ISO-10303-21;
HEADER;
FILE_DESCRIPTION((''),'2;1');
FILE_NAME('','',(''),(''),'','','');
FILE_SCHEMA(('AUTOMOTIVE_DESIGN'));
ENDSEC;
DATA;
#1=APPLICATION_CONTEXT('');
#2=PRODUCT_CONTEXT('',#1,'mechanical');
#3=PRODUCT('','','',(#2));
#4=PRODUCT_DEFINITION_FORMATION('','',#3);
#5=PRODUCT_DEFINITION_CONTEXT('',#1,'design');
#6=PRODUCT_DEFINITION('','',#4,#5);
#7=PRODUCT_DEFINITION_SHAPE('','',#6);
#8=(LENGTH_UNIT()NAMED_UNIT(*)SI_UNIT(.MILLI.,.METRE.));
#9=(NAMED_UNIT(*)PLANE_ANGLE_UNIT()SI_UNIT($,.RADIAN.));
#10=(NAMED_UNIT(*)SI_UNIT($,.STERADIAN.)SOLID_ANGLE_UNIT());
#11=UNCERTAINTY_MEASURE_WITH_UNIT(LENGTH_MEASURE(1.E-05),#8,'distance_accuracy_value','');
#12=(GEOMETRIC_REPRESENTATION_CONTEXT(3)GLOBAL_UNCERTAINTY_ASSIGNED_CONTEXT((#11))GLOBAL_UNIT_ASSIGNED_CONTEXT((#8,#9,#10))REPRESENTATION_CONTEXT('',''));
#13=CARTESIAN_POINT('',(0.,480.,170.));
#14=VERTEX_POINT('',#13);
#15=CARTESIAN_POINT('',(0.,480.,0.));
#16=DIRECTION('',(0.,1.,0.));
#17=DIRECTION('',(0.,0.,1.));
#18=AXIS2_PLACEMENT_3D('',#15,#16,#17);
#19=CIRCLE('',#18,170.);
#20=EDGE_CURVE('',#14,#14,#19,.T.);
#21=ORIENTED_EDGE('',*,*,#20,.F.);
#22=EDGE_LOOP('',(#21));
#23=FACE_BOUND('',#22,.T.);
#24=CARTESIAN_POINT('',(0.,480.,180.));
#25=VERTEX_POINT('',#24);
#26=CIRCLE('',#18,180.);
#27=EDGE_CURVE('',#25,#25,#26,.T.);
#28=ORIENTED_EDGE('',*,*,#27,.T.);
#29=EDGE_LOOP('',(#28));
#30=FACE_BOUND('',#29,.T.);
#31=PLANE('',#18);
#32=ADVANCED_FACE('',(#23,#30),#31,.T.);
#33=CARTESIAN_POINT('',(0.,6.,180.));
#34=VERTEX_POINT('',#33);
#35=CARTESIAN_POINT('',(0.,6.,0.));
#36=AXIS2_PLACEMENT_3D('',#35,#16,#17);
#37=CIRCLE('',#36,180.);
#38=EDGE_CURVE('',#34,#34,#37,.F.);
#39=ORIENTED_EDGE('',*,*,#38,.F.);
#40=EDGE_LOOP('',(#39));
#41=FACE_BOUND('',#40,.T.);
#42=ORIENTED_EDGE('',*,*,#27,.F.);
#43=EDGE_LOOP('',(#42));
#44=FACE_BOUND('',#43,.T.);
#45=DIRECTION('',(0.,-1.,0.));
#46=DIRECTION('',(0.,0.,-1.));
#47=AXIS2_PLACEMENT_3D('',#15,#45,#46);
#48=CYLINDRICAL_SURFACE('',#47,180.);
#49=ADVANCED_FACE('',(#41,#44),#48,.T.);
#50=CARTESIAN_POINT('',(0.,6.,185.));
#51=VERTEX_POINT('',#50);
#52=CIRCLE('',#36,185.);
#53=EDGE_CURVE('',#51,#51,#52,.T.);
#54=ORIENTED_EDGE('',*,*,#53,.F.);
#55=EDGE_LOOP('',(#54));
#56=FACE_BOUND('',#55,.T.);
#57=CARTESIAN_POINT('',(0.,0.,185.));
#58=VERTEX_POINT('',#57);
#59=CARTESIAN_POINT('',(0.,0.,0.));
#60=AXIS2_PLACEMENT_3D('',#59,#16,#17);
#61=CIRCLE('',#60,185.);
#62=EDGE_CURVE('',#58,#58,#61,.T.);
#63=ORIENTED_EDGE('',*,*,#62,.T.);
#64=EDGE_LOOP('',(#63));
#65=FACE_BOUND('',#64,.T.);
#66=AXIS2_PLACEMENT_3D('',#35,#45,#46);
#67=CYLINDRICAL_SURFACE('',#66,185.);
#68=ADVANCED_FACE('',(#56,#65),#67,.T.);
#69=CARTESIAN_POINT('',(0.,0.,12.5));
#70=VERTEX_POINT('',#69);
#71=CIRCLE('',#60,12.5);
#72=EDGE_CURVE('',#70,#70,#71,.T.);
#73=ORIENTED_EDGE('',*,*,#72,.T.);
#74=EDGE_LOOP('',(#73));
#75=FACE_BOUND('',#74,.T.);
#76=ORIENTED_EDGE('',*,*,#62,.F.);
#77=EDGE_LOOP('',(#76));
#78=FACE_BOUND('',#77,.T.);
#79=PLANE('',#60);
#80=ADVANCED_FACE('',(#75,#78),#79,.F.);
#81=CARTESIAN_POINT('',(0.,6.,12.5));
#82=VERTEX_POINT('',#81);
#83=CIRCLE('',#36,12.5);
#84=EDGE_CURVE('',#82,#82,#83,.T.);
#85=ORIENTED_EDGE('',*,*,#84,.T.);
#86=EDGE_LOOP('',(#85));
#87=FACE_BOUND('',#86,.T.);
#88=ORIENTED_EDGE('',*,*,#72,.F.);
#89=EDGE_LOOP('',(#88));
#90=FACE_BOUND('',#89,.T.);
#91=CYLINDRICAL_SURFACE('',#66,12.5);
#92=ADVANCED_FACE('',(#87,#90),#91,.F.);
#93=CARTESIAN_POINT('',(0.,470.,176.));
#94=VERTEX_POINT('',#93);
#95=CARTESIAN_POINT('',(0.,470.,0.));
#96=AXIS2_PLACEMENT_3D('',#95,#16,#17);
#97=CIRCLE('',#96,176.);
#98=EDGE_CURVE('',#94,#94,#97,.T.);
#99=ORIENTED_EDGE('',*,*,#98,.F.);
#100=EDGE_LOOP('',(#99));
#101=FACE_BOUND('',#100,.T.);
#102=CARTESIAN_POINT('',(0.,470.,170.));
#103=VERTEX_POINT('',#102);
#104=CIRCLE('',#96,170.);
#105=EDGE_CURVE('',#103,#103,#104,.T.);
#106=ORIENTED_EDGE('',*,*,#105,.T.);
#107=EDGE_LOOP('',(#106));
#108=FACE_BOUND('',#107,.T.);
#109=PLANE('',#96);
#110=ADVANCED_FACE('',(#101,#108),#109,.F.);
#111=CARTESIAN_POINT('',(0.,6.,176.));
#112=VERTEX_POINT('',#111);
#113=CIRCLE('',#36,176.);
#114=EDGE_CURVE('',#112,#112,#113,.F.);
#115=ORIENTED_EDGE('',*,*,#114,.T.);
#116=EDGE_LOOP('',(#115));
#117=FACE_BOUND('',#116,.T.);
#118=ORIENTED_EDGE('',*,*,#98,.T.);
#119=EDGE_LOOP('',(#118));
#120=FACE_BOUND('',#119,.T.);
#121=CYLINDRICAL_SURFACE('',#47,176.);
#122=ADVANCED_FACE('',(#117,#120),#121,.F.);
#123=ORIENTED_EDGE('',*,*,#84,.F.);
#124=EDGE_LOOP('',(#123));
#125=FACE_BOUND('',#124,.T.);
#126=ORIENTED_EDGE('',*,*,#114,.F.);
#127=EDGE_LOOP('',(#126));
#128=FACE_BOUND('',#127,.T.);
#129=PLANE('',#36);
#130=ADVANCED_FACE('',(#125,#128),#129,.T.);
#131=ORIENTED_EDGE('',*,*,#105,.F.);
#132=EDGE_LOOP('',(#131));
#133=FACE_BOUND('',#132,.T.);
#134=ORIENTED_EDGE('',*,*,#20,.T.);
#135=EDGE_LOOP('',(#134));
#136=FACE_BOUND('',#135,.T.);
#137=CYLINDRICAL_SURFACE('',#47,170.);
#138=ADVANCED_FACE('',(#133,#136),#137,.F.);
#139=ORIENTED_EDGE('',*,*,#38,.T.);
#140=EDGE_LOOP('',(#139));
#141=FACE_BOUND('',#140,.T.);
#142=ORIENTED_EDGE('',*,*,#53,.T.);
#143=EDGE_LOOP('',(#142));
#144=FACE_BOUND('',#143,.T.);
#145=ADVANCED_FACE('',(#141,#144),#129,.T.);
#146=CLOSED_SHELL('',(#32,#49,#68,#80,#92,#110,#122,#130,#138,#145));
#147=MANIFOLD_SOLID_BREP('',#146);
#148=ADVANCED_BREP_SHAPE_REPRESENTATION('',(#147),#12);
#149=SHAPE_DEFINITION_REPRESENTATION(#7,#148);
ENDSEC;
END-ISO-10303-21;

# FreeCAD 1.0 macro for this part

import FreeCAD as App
import Part
import Sketcher
from FreeCAD import Vector

doc = App.newDocument("Part")
body = doc.addObject("PartDesign::Body", "Body")

sketch1 = body.newObject("Sketcher::SketchObject", "Sketch")
sketch1.AttachmentSupport = (doc.getObject("XZ_Plane"), [""])
sketch1.MapMode = "FlatFace"
sketch1.addGeometry([
    Part.Circle(Vector(0, 0, 0), Vector(0, 0, 1), 185),
    Part.Circle(Vector(0, 0, 0), Vector(0, 0, 1), 12),
], False)
sketch1.addConstraint([
    Sketcher.Constraint("Coincident", 0, 3, -1, 1),
    Sketcher.Constraint("Coincident", 1, 3, -1, 1),
    Sketcher.Constraint("Diameter", 0, 370.0),
    Sketcher.Constraint("Diameter", 1, 25.0),
])
pad1 = body.newObject("PartDesign::Pad", "Pad")
pad1.Profile = sketch1
pad1.Length = 6
pad1.Reversed = True

sketch2 = body.newObject("Sketcher::SketchObject", "Sketch001")
sketch2.AttachmentSupport = (doc.getObject("XZ_Plane"), [""])
sketch2.MapMode = "FlatFace"
sketch2.addGeometry([
    Part.Circle(Vector(0, 0, 0), Vector(0, 0, 1), 180),
    Part.Circle(Vector(0, 0, 0), Vector(0, 0, 1), 176),
], False)
sketch2.addConstraint([
    Sketcher.Constraint("Coincident", 0, 3, -1, 1),
    Sketcher.Constraint("Coincident", 1, 3, -1, 1),
    Sketcher.Constraint("Diameter", 0, 360.0),
    Sketcher.Constraint("Diameter", 1, 352.0),
])
pad2 = body.newObject("PartDesign::Pad", "Pad001")
pad2.Profile = sketch2
pad2.Length = 480
pad2.Reversed = True

sketch3 = body.newObject("Sketcher::SketchObject", "Sketch002")
sketch3.AttachmentSupport = (doc.getObject("XZ_Plane"), [""])
sketch3.MapMode = "FlatFace"
sketch3.AttachmentOffset = App.Placement(Vector(0, 0, -470), App.Rotation())
sketch3.addGeometry([
    Part.Circle(Vector(0, 0, 0), Vector(0, 0, 1), 177),
    Part.Circle(Vector(0, 0, 0), Vector(0, 0, 1), 170),
], False)
sketch3.addConstraint([
    Sketcher.Constraint("Coincident", 0, 3, -1, 1),
    Sketcher.Constraint("Coincident", 1, 3, -1, 1),
    Sketcher.Constraint("Diameter", 0, 354.0),
    Sketcher.Constraint("Diameter", 1, 340.0),
])
pad3 = body.newObject("PartDesign::Pad", "Pad002")
pad3.Profile = sketch3
pad3.Length = 10
pad3.Reversed = True

doc.recompute()
